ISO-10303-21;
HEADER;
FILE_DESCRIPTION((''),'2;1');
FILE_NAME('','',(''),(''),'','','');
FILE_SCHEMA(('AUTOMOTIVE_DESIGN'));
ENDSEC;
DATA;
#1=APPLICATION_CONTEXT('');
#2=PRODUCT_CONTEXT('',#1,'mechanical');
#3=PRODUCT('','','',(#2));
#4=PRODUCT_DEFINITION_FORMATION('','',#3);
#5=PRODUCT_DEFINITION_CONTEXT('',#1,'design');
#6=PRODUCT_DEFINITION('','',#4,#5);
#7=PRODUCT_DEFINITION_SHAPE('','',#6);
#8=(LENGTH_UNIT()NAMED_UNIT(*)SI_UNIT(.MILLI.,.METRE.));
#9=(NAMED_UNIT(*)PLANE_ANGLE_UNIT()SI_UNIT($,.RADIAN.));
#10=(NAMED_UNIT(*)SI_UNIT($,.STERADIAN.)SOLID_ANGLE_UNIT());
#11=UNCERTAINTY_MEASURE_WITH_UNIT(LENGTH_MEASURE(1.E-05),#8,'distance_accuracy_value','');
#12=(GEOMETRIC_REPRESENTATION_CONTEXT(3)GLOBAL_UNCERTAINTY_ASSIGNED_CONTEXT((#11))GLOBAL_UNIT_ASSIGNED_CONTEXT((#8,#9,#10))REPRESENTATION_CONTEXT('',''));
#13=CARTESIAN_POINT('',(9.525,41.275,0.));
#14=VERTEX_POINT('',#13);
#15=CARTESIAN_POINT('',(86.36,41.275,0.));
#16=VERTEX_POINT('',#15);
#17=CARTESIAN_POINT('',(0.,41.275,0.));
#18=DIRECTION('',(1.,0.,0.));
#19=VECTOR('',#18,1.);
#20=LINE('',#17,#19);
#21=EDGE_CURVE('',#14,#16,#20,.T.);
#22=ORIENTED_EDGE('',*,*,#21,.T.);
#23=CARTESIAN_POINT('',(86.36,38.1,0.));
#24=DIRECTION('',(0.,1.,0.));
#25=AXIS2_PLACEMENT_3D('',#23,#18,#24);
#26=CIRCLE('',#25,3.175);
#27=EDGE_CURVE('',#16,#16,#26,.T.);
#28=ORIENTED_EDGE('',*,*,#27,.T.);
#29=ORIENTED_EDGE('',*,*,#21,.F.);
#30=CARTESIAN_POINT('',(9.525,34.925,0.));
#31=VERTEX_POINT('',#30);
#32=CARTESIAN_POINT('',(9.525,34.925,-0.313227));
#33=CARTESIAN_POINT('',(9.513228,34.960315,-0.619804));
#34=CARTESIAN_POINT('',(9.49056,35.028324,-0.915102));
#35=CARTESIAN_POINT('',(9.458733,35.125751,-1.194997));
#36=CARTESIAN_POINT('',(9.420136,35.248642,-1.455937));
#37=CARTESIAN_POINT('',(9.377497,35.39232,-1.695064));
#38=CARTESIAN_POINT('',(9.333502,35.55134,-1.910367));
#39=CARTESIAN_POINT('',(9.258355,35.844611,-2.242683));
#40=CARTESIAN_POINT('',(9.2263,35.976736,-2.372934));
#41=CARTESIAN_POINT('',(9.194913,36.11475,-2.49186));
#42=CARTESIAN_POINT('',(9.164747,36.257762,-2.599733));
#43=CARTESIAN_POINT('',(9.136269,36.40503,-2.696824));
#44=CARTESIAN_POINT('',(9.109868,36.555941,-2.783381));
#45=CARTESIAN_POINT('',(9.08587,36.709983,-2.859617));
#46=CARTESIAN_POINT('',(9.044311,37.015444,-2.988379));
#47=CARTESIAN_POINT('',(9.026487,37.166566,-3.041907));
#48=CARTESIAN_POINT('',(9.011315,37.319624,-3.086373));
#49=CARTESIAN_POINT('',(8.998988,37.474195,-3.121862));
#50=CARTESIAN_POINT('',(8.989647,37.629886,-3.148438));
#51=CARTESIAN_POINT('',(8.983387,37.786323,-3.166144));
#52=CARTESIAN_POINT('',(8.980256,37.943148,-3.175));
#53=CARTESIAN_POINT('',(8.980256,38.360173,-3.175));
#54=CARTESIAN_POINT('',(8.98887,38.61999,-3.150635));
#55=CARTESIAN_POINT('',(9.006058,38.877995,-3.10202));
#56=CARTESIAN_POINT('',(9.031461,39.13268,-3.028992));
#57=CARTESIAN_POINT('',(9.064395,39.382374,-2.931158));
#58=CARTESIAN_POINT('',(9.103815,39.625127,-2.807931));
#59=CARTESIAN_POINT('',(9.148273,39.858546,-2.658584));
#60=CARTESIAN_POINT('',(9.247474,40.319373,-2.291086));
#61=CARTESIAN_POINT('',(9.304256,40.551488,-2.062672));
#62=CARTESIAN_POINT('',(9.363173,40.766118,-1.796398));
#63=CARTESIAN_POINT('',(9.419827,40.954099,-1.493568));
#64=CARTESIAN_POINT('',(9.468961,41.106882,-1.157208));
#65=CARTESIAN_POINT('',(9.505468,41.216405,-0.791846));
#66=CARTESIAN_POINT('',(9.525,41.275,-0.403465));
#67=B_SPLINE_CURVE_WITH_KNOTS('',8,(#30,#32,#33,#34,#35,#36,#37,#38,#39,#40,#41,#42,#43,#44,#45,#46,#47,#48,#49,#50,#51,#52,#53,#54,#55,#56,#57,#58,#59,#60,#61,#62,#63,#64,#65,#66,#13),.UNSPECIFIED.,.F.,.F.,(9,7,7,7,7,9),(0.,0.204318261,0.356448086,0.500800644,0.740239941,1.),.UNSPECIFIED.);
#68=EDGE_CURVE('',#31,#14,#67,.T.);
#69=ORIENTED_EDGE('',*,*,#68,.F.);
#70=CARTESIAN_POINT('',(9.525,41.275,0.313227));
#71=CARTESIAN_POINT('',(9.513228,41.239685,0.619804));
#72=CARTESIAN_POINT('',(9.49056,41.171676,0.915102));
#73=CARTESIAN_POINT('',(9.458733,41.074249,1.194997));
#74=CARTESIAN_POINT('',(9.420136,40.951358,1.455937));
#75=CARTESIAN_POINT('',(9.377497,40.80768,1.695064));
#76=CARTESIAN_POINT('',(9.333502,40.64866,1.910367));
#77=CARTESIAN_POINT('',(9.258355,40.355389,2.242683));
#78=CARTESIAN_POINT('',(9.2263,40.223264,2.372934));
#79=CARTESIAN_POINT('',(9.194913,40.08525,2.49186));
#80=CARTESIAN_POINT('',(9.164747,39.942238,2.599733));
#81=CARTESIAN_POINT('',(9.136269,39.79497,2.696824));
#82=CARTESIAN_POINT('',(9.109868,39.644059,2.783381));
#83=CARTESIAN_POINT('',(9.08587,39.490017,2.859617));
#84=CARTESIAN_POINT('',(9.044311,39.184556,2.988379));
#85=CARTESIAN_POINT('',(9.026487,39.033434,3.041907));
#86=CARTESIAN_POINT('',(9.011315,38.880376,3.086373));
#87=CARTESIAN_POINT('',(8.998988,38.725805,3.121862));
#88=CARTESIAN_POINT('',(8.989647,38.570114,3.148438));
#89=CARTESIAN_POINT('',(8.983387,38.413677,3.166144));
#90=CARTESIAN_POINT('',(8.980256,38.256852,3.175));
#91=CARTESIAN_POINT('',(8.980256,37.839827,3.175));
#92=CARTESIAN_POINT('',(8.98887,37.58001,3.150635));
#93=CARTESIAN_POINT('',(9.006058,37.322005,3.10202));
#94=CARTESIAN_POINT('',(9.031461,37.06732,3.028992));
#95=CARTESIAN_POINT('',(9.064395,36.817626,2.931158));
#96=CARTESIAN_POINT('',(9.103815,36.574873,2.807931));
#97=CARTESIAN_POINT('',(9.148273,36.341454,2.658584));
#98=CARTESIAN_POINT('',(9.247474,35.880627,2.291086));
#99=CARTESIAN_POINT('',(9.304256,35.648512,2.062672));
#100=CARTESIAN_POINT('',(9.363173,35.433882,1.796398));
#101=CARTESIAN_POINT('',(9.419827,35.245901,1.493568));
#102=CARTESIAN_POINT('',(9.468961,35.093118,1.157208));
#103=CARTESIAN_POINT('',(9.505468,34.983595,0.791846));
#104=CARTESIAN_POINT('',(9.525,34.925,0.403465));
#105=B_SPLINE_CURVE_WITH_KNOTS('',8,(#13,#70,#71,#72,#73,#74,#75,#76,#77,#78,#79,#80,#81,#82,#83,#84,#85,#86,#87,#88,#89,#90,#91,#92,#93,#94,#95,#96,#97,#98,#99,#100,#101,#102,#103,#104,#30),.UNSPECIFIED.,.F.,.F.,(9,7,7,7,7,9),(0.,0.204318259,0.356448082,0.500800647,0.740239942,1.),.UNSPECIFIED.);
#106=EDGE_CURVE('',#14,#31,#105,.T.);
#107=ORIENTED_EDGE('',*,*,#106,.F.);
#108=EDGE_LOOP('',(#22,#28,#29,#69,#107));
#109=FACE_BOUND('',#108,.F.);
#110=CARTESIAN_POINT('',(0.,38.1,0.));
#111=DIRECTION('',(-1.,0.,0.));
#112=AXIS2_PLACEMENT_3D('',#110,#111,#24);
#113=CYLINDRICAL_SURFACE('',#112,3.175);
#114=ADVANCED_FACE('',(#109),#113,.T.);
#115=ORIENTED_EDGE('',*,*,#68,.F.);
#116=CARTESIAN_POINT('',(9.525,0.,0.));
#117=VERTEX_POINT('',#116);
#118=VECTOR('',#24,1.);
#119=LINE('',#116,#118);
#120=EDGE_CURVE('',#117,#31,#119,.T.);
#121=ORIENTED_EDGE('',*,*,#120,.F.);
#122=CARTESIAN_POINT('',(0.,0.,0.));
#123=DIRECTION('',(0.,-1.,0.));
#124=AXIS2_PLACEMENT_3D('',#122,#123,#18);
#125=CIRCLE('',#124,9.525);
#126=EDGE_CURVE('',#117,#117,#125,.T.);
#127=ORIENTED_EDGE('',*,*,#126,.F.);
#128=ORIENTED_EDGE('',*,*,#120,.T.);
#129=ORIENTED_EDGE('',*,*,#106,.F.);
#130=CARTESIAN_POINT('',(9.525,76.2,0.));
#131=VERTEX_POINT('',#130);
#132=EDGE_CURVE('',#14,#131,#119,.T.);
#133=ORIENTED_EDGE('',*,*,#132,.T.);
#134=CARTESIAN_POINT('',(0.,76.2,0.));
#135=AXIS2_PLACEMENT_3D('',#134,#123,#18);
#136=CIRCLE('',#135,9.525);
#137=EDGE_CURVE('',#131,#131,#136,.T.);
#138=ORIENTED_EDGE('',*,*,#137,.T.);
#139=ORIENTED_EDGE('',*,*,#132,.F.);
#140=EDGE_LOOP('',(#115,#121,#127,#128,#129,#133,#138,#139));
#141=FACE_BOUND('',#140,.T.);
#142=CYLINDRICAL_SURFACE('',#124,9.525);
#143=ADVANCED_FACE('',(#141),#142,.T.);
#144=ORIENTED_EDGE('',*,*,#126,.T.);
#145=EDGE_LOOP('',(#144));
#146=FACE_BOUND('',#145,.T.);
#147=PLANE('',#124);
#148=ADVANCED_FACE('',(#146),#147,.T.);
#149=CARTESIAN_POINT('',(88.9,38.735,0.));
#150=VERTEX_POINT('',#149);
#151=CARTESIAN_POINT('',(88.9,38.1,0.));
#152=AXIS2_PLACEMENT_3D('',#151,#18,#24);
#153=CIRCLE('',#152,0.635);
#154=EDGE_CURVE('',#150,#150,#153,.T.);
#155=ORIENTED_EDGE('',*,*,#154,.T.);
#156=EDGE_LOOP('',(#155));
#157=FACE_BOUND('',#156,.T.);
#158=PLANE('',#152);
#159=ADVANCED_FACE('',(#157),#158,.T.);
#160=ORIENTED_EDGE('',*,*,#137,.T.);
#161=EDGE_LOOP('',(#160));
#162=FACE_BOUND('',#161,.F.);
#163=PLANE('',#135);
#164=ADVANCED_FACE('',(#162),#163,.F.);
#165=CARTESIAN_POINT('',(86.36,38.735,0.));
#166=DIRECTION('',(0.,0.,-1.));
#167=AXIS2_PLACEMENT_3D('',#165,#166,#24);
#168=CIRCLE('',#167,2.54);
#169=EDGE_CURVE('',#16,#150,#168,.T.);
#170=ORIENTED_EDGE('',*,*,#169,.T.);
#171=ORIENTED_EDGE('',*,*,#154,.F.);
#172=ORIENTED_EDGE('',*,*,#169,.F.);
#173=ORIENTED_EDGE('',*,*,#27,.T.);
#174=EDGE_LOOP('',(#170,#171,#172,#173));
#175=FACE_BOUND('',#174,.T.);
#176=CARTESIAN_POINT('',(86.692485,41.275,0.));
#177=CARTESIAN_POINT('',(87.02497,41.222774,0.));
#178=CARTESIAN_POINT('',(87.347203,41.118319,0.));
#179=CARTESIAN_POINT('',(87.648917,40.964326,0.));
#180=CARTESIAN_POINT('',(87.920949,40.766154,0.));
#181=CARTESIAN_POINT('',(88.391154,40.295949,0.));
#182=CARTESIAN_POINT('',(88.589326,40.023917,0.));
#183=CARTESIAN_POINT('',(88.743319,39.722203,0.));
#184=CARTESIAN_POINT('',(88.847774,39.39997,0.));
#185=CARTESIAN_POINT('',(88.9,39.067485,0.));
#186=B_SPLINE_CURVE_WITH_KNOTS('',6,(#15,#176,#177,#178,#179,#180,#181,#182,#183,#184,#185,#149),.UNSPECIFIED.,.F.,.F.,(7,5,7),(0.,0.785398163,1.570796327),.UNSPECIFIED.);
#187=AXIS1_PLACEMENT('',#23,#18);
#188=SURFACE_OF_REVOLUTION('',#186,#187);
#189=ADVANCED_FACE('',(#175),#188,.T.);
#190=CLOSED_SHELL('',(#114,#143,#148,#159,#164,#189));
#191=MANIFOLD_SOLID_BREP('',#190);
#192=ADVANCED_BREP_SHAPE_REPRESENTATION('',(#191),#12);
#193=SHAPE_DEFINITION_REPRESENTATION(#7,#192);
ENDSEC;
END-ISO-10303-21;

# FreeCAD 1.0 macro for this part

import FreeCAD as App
import Part
import Sketcher
Q = App.Units.Quantity


def edges_at(feature, points):
    """Names of the edges that pass closest to the given points."""
    edges = feature.Shape.Edges
    near = lambda p: min(range(len(edges)), key=lambda i: edges[i].distToShape(Part.Vertex(*p))[0])
    return sorted({f"Edge{near(p) + 1}" for p in points})

doc = App.newDocument("Part")
body = doc.addObject("PartDesign::Body", "Body")

# Sketch on XZ plane
sketch1 = body.newObject("Sketcher::SketchObject", "Sketch")
sketch1.AttachmentSupport = (doc.getObject("XZ_Plane"), [""])
sketch1.MapMode = "FlatFace"
sketch1.addGeometry(Part.Circle(App.Vector(0, 0, 0), App.Vector(0, 0, 1), 10), False)
sketch1.addConstraint([
    Sketcher.Constraint("Coincident", 0, 3, -1, 1),
    Sketcher.Constraint("Diameter", 0, Q("0.75 in")),
])
pad1 = body.newObject("PartDesign::Pad", "Pad")
pad1.Profile = sketch1
pad1.Length = Q("3 in")
pad1.Reversed = True

# Sketch on YZ plane
sketch2 = body.newObject("Sketcher::SketchObject", "Sketch001")
sketch2.AttachmentSupport = (doc.getObject("YZ_Plane"), [""])
sketch2.MapMode = "FlatFace"
sketch2.addGeometry(Part.Circle(App.Vector(38.1, 0, 0), App.Vector(0, 0, 1), 3.2), False)
sketch2.addConstraint([
    Sketcher.Constraint("PointOnObject", 0, 3, -1),
    Sketcher.Constraint("Diameter", 0, Q("0.25 in")),
    Sketcher.Constraint("DistanceX", -1, 1, 0, 3, Q("1.5 in")),
])
pad2 = body.newObject("PartDesign::Pad", "Pad001")
pad2.Profile = sketch2
pad2.Length = Q("3.5 in")
doc.recompute()

fillet = body.newObject("PartDesign::Fillet", "Fillet")
fillet.Base = (pad2, edges_at(pad2, [(88.9, 34.925, 0)]))
fillet.Radius = Q("0.1 in")

doc.recompute()
